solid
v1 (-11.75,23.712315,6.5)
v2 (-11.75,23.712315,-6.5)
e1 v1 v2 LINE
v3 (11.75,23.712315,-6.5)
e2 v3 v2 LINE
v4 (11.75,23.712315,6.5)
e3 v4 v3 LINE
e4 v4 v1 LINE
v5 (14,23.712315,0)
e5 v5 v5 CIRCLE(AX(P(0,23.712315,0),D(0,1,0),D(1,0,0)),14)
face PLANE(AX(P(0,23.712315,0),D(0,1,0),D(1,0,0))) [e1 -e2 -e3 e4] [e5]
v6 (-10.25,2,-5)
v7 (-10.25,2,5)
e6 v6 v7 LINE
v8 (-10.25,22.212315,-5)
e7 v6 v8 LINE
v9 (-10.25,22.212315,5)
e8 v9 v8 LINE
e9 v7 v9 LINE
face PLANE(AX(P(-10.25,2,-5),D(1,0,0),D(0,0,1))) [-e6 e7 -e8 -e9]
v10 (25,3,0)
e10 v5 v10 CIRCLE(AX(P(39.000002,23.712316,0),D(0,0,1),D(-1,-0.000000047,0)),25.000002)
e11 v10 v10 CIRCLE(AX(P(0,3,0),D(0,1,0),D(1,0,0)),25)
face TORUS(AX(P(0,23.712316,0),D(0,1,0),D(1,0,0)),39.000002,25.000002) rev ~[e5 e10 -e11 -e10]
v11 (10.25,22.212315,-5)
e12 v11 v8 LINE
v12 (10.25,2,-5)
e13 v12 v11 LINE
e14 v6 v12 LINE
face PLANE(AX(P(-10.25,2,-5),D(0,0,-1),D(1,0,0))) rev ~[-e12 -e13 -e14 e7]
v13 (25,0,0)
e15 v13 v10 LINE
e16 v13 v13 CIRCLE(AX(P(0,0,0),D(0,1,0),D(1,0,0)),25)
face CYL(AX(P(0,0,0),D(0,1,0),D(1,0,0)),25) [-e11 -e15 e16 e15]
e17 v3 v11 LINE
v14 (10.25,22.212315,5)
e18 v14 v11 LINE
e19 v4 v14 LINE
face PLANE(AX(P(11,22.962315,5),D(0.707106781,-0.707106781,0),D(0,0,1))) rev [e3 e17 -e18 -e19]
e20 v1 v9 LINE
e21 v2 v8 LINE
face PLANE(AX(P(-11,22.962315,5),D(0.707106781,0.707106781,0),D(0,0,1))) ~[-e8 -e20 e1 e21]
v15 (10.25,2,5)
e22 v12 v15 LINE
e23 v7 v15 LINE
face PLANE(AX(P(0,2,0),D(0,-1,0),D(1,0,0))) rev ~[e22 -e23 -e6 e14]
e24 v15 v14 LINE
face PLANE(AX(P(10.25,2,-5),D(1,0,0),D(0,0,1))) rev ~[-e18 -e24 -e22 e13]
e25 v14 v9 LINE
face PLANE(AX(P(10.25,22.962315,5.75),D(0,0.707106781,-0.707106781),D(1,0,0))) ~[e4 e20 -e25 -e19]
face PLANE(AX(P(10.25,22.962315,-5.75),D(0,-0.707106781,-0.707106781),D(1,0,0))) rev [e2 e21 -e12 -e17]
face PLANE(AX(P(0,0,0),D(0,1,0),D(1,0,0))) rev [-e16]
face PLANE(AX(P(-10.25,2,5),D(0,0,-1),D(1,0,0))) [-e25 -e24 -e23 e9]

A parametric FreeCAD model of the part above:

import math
import FreeCAD as App
import Part
import Sketcher
from FreeCAD import Vector
Q = App.Units.Quantity


def edges_at(feature, points):
    """Names of the edges that pass closest to the given points."""
    edges = feature.Shape.Edges
    near = lambda p: min(range(len(edges)), key=lambda i: edges[i].distToShape(Part.Vertex(*p))[0])
    return sorted({f"Edge{near(p) + 1}" for p in points})


def add_polygon(sketch, points):
    """Adds a closed chain of lines whose ends are joined by coincident constraints."""
    first, n = sketch.GeometryCount, len(points)
    for a, b in zip(points, points[1:] + points[:1]):
        sketch.addGeometry(Part.LineSegment(App.Vector(*a, 0), App.Vector(*b, 0)), False)
    for i in range(n):
        sketch.addConstraint(Sketcher.Constraint("Coincident", first + i, 2, first + (i + 1) % n, 1))

doc = App.newDocument("Part")
body = doc.addObject("PartDesign::Body", "Body")

# Sketch on XY plane
sketch1 = doc.addObject("Sketcher::SketchObject", "Sketch")
body.addObject(sketch1)
sketch1.AttachmentSupport = (doc.XY_Plane, [""])
sketch1.MapMode = "FlatFace"
sketch1.addGeometry([
    Part.LineSegment(Vector(0, 0, 0), Vector(25, 0, 0)),  # 0
    Part.LineSegment(Vector(25, 0, 0), Vector(25, 3, 0)),  # 1
    Part.ArcOfCircle(Part.Circle(Vector(39.000002, 23.712316, 0), Vector(0, 0, 1), 25.000002), math.radians(-179.999997), math.radians(-124.0558)),  # 2
    Part.LineSegment(Vector(14, 23.712315, 0), Vector(0, 23.712315, 0)),  # 3
    Part.LineSegment(Vector(0, 23.712315, 0), Vector(0, 0, 0)),  # 4
], False)
sketch1.addConstraint([
    Sketcher.Constraint("Coincident", 0, 2, 1, 1),
    Sketcher.Constraint("Coincident", 1, 2, 2, 2),
    Sketcher.Constraint("Coincident", 2, 1, 3, 1),
    Sketcher.Constraint("Coincident", 3, 2, 4, 1),
    Sketcher.Constraint("Coincident", 4, 2, 0, 1),
    Sketcher.Constraint("Horizontal", 0),
    Sketcher.Constraint("Vertical", 1),
    Sketcher.Constraint("Horizontal", 3),
    Sketcher.Constraint("Vertical", 4),
    Sketcher.Constraint("Coincident", 4, 2, -1, 1),
    Sketcher.Constraint("Radius", 2, Q("25.000002 mm")),
    Sketcher.Constraint("DistanceX", 0, 1, 0, 2, Q("25 mm")),
    Sketcher.Constraint("DistanceX", 3, 2, 3, 1, Q("14 mm")),
    Sketcher.Constraint("DistanceY", 1, 1, 1, 2, Q("3 mm")),
    Sketcher.Constraint("DistanceY", 4, 2, 4, 1, Q("23.712315 mm")),
])
revolution = doc.addObject("PartDesign::Revolution", "Revolution")
body.addObject(revolution)
revolution.Profile = sketch1
revolution.ReferenceAxis = (sketch1, ["V_Axis"])
revolution.Angle = 360

# Sketch on XZ plane
sketch2 = doc.addObject("Sketcher::SketchObject", "Sketch001")
body.addObject(sketch2)
sketch2.AttachmentSupport = (doc.XZ_Plane, [""])
sketch2.MapMode = "FlatFace"
sketch2.AttachmentOffset = App.Placement(Vector(0, 0, -2), App.Rotation())
add_polygon(sketch2, [(-10.25, 5), (-10.25, -5), (10.25, -5), (10.25, 5)])  # lines 0-3
sketch2.addConstraint([
    Sketcher.Constraint("Vertical", 0),
    Sketcher.Constraint("Horizontal", 1),
    Sketcher.Constraint("Vertical", 2),
    Sketcher.Constraint("Horizontal", 3),
    Sketcher.Constraint("Symmetric", 0, 2, 2, 2, -1, 1),
    Sketcher.Constraint("DistanceY", 0, 2, 0, 1, Q("10 mm")),
    Sketcher.Constraint("DistanceX", 1, 1, 1, 2, Q("20.5 mm")),
])
pocket1 = doc.addObject("PartDesign::Pocket", "Pocket")
body.addObject(pocket1)
pocket1.Profile = sketch2
pocket1.Type = "ThroughAll"
doc.recompute()

chamfer = doc.addObject("PartDesign::Chamfer", "Chamfer")
body.addObject(chamfer)
chamfer.Base = (pocket1, edges_at(pocket1, [
    (0, 23.712, -5),
    (10.25, 23.712, 0),
    (0, 23.712, 5),
    (-10.25, 23.712, 0),
]))
chamfer.Size = 1.5

doc.recompute()
